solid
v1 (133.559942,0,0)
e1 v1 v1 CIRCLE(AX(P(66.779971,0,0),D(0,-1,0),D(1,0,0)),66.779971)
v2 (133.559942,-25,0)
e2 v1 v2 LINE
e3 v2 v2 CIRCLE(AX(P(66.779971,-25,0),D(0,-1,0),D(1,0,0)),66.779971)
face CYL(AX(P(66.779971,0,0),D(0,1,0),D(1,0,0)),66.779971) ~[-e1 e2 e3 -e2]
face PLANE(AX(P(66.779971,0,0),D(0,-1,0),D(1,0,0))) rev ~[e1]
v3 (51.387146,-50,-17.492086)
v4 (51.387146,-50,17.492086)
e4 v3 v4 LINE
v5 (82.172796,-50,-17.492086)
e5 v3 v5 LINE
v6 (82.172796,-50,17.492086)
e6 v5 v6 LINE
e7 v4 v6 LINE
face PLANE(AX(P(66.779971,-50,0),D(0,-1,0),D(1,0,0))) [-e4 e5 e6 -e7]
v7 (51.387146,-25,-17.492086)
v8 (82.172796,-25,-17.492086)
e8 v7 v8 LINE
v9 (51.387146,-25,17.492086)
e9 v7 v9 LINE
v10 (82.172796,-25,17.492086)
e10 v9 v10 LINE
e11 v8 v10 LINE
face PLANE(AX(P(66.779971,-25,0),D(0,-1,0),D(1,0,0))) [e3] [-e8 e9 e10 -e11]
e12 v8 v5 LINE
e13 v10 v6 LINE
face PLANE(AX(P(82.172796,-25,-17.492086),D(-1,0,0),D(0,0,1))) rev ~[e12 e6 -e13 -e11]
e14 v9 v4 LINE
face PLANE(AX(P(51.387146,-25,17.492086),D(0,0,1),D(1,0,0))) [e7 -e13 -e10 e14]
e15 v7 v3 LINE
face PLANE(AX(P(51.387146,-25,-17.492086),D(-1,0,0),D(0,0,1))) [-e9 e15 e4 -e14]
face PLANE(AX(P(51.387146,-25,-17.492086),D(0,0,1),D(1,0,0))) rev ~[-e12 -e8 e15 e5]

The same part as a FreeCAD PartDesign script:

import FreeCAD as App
import Part
import Sketcher
Q = App.Units.Quantity

doc = App.newDocument("Part")
params = doc.addObject("Spreadsheet::Sheet", "Params")
for row, (alias, value) in enumerate([
    ("pad1_length", "25 mm"),
    ("pad2_length", "25 mm"),
], start=1):
    params.set(f"A{row}", alias)
    params.set(f"B{row}", "=" + value)
    params.setAlias(f"B{row}", alias)

body = doc.addObject("PartDesign::Body", "Body")

# Sketch on XZ plane
sketch1 = doc.addObject("Sketcher::SketchObject", "Sketch")
body.addObject(sketch1)
sketch1.AttachmentSupport = (doc.XZ_Plane, [""])
sketch1.MapMode = "FlatFace"
sketch1.addGeometry(Part.Circle(App.Vector(67, 0, 0), App.Vector(0, 0, 1), 67), False)
sketch1.addConstraint([
    Sketcher.Constraint("PointOnObject", 0, 3, -1),
    Sketcher.Constraint("Diameter", 0, Q("133.559942 mm")),
    Sketcher.Constraint("DistanceX", -1, 1, 0, 3, Q("66.779971 mm")),
])
pad1 = doc.addObject("PartDesign::Pad", "Pad")
body.addObject(pad1)
pad1.Profile = sketch1
pad1.setExpression("Length", "Params.pad1_length")

# Sketch on XZ plane
sketch2 = doc.addObject("Sketcher::SketchObject", "Sketch001")
body.addObject(sketch2)
sketch2.AttachmentSupport = (doc.XZ_Plane, [""])
sketch2.MapMode = "FlatFace"
sketch2.AttachmentOffset = App.Placement(App.Vector(0, 0, 25), App.Rotation())
sketch2.addGeometry([
    Part.LineSegment(App.Vector(51, 17, 0), App.Vector(51, -17, 0)),
    Part.LineSegment(App.Vector(51, -17, 0), App.Vector(82, -17, 0)),
    Part.LineSegment(App.Vector(82, -17, 0), App.Vector(82, 17, 0)),
    Part.LineSegment(App.Vector(82, 17, 0), App.Vector(51, 17, 0)),
], False)
sketch2.addConstraint([
    Sketcher.Constraint("Coincident", 0, 2, 1, 1),
    Sketcher.Constraint("Coincident", 1, 2, 2, 1),
    Sketcher.Constraint("Coincident", 2, 2, 3, 1),
    Sketcher.Constraint("Coincident", 3, 2, 0, 1),
    Sketcher.Constraint("Vertical", 0),
    Sketcher.Constraint("Horizontal", 1),
    Sketcher.Constraint("Vertical", 2),
    Sketcher.Constraint("Horizontal", 3),
    Sketcher.Constraint("DistanceX", 1, 1, 1, 2, Q("30.78565 mm")),
    Sketcher.Constraint("DistanceY", 0, 2, 0, 1, Q("34.984172 mm")),
    Sketcher.Constraint("DistanceX", -1, 1, 0, 2, Q("51.387146 mm")),
    Sketcher.Constraint("DistanceY", 0, 2, -1, 1, Q("17.492086 mm")),
])
pad2 = doc.addObject("PartDesign::Pad", "Pad001")
body.addObject(pad2)
pad2.Profile = sketch2
pad2.setExpression("Length", "Params.pad2_length")

doc.recompute()
